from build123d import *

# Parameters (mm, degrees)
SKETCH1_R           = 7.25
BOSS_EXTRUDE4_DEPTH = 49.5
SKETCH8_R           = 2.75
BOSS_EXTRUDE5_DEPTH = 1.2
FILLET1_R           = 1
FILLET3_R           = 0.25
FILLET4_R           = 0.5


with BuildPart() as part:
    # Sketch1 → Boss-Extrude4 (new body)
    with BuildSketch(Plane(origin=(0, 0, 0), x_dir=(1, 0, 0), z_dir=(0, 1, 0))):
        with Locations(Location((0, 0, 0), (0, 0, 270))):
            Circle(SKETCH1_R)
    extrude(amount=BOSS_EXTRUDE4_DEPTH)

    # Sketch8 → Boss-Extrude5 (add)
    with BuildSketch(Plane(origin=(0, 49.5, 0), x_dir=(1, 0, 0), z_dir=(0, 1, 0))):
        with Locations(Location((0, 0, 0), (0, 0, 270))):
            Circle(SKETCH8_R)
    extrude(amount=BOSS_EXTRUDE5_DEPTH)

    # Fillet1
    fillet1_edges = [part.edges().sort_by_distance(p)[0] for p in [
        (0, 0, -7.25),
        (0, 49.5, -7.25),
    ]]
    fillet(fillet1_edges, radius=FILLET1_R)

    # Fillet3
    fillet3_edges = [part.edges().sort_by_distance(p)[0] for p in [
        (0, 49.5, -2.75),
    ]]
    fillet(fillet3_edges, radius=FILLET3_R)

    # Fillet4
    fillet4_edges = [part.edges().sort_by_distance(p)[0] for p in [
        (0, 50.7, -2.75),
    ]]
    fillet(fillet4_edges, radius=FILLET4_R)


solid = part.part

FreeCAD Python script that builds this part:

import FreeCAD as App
import Part
import Sketcher
Q = App.Units.Quantity


def edges_at(feature, points):
    """Names of the edges that pass closest to the given points."""
    edges = feature.Shape.Edges
    near = lambda p: min(range(len(edges)), key=lambda i: edges[i].distToShape(Part.Vertex(*p))[0])
    return sorted({f"Edge{near(p) + 1}" for p in points})

doc = App.newDocument("Part")
params = doc.addObject("Spreadsheet::Sheet", "Params")
for row, (alias, value) in enumerate([
    ("sketch1_diameter", "14.5 mm"),
    ("pad1_length", "49.5 mm"),
    ("sketch2_diameter", "5.5 mm"),
    ("pad2_length", "1.2 mm"),
    ("fillet_radius", "1 mm"),
    ("fillet2_radius", "0.25 mm"),
    ("fillet3_radius", "0.5 mm"),
], start=1):
    params.set(f"A{row}", alias)
    params.set(f"B{row}", "=" + value)
    params.setAlias(f"B{row}", alias)

body = doc.addObject("PartDesign::Body", "Body")

sketch1 = doc.addObject("Sketcher::SketchObject", "Sketch")
body.addObject(sketch1)
sketch1.AttachmentSupport = (doc.XZ_Plane, [""])
sketch1.MapMode = "FlatFace"
sketch1.addGeometry(Part.Circle(App.Vector(0, 0, 0), App.Vector(0, 0, 1), 7), False)
sketch1.addConstraint([
    Sketcher.Constraint("Coincident", 0, 3, -1, 1),
    Sketcher.Constraint("Diameter", 0, Q("14.5 mm")),
])
sketch1.setExpression("Constraints[1]", "Params.sketch1_diameter")
pad1 = doc.addObject("PartDesign::Pad", "Pad")
body.addObject(pad1)
pad1.Profile = sketch1
pad1.setExpression("Length", "Params.pad1_length")
pad1.Reversed = True

sketch2 = doc.addObject("Sketcher::SketchObject", "Sketch001")
body.addObject(sketch2)
sketch2.AttachmentSupport = (doc.XZ_Plane, [""])
sketch2.MapMode = "FlatFace"
sketch2.AttachmentOffset = App.Placement(App.Vector(0, 0, -49.5), App.Rotation())
sketch2.addGeometry(Part.Circle(App.Vector(0, 0, 0), App.Vector(0, 0, 1), 2.8), False)
sketch2.addConstraint([
    Sketcher.Constraint("Coincident", 0, 3, -1, 1),
    Sketcher.Constraint("Diameter", 0, Q("5.5 mm")),
])
sketch2.setExpression("Constraints[1]", "Params.sketch2_diameter")
pad2 = doc.addObject("PartDesign::Pad", "Pad001")
body.addObject(pad2)
pad2.Profile = sketch2
pad2.setExpression("Length", "Params.pad2_length")
pad2.Reversed = True
doc.recompute()

fillet = doc.addObject("PartDesign::Fillet", "Fillet")
body.addObject(fillet)
fillet.Base = (pad2, edges_at(pad2, [(0, 0, -7.25), (0, 49.5, -7.25)]))
fillet.setExpression("Radius", "Params.fillet_radius")
doc.recompute()

fillet2 = doc.addObject("PartDesign::Fillet", "Fillet001")
body.addObject(fillet2)
fillet2.Base = (fillet, edges_at(fillet, [(0, 49.5, -2.75)]))
fillet2.setExpression("Radius", "Params.fillet2_radius")
doc.recompute()

fillet3 = doc.addObject("PartDesign::Fillet", "Fillet002")
body.addObject(fillet3)
fillet3.Base = (fillet2, edges_at(fillet2, [(0, 50.7, -2.75)]))
fillet3.setExpression("Radius", "Params.fillet3_radius")

doc.recompute()
